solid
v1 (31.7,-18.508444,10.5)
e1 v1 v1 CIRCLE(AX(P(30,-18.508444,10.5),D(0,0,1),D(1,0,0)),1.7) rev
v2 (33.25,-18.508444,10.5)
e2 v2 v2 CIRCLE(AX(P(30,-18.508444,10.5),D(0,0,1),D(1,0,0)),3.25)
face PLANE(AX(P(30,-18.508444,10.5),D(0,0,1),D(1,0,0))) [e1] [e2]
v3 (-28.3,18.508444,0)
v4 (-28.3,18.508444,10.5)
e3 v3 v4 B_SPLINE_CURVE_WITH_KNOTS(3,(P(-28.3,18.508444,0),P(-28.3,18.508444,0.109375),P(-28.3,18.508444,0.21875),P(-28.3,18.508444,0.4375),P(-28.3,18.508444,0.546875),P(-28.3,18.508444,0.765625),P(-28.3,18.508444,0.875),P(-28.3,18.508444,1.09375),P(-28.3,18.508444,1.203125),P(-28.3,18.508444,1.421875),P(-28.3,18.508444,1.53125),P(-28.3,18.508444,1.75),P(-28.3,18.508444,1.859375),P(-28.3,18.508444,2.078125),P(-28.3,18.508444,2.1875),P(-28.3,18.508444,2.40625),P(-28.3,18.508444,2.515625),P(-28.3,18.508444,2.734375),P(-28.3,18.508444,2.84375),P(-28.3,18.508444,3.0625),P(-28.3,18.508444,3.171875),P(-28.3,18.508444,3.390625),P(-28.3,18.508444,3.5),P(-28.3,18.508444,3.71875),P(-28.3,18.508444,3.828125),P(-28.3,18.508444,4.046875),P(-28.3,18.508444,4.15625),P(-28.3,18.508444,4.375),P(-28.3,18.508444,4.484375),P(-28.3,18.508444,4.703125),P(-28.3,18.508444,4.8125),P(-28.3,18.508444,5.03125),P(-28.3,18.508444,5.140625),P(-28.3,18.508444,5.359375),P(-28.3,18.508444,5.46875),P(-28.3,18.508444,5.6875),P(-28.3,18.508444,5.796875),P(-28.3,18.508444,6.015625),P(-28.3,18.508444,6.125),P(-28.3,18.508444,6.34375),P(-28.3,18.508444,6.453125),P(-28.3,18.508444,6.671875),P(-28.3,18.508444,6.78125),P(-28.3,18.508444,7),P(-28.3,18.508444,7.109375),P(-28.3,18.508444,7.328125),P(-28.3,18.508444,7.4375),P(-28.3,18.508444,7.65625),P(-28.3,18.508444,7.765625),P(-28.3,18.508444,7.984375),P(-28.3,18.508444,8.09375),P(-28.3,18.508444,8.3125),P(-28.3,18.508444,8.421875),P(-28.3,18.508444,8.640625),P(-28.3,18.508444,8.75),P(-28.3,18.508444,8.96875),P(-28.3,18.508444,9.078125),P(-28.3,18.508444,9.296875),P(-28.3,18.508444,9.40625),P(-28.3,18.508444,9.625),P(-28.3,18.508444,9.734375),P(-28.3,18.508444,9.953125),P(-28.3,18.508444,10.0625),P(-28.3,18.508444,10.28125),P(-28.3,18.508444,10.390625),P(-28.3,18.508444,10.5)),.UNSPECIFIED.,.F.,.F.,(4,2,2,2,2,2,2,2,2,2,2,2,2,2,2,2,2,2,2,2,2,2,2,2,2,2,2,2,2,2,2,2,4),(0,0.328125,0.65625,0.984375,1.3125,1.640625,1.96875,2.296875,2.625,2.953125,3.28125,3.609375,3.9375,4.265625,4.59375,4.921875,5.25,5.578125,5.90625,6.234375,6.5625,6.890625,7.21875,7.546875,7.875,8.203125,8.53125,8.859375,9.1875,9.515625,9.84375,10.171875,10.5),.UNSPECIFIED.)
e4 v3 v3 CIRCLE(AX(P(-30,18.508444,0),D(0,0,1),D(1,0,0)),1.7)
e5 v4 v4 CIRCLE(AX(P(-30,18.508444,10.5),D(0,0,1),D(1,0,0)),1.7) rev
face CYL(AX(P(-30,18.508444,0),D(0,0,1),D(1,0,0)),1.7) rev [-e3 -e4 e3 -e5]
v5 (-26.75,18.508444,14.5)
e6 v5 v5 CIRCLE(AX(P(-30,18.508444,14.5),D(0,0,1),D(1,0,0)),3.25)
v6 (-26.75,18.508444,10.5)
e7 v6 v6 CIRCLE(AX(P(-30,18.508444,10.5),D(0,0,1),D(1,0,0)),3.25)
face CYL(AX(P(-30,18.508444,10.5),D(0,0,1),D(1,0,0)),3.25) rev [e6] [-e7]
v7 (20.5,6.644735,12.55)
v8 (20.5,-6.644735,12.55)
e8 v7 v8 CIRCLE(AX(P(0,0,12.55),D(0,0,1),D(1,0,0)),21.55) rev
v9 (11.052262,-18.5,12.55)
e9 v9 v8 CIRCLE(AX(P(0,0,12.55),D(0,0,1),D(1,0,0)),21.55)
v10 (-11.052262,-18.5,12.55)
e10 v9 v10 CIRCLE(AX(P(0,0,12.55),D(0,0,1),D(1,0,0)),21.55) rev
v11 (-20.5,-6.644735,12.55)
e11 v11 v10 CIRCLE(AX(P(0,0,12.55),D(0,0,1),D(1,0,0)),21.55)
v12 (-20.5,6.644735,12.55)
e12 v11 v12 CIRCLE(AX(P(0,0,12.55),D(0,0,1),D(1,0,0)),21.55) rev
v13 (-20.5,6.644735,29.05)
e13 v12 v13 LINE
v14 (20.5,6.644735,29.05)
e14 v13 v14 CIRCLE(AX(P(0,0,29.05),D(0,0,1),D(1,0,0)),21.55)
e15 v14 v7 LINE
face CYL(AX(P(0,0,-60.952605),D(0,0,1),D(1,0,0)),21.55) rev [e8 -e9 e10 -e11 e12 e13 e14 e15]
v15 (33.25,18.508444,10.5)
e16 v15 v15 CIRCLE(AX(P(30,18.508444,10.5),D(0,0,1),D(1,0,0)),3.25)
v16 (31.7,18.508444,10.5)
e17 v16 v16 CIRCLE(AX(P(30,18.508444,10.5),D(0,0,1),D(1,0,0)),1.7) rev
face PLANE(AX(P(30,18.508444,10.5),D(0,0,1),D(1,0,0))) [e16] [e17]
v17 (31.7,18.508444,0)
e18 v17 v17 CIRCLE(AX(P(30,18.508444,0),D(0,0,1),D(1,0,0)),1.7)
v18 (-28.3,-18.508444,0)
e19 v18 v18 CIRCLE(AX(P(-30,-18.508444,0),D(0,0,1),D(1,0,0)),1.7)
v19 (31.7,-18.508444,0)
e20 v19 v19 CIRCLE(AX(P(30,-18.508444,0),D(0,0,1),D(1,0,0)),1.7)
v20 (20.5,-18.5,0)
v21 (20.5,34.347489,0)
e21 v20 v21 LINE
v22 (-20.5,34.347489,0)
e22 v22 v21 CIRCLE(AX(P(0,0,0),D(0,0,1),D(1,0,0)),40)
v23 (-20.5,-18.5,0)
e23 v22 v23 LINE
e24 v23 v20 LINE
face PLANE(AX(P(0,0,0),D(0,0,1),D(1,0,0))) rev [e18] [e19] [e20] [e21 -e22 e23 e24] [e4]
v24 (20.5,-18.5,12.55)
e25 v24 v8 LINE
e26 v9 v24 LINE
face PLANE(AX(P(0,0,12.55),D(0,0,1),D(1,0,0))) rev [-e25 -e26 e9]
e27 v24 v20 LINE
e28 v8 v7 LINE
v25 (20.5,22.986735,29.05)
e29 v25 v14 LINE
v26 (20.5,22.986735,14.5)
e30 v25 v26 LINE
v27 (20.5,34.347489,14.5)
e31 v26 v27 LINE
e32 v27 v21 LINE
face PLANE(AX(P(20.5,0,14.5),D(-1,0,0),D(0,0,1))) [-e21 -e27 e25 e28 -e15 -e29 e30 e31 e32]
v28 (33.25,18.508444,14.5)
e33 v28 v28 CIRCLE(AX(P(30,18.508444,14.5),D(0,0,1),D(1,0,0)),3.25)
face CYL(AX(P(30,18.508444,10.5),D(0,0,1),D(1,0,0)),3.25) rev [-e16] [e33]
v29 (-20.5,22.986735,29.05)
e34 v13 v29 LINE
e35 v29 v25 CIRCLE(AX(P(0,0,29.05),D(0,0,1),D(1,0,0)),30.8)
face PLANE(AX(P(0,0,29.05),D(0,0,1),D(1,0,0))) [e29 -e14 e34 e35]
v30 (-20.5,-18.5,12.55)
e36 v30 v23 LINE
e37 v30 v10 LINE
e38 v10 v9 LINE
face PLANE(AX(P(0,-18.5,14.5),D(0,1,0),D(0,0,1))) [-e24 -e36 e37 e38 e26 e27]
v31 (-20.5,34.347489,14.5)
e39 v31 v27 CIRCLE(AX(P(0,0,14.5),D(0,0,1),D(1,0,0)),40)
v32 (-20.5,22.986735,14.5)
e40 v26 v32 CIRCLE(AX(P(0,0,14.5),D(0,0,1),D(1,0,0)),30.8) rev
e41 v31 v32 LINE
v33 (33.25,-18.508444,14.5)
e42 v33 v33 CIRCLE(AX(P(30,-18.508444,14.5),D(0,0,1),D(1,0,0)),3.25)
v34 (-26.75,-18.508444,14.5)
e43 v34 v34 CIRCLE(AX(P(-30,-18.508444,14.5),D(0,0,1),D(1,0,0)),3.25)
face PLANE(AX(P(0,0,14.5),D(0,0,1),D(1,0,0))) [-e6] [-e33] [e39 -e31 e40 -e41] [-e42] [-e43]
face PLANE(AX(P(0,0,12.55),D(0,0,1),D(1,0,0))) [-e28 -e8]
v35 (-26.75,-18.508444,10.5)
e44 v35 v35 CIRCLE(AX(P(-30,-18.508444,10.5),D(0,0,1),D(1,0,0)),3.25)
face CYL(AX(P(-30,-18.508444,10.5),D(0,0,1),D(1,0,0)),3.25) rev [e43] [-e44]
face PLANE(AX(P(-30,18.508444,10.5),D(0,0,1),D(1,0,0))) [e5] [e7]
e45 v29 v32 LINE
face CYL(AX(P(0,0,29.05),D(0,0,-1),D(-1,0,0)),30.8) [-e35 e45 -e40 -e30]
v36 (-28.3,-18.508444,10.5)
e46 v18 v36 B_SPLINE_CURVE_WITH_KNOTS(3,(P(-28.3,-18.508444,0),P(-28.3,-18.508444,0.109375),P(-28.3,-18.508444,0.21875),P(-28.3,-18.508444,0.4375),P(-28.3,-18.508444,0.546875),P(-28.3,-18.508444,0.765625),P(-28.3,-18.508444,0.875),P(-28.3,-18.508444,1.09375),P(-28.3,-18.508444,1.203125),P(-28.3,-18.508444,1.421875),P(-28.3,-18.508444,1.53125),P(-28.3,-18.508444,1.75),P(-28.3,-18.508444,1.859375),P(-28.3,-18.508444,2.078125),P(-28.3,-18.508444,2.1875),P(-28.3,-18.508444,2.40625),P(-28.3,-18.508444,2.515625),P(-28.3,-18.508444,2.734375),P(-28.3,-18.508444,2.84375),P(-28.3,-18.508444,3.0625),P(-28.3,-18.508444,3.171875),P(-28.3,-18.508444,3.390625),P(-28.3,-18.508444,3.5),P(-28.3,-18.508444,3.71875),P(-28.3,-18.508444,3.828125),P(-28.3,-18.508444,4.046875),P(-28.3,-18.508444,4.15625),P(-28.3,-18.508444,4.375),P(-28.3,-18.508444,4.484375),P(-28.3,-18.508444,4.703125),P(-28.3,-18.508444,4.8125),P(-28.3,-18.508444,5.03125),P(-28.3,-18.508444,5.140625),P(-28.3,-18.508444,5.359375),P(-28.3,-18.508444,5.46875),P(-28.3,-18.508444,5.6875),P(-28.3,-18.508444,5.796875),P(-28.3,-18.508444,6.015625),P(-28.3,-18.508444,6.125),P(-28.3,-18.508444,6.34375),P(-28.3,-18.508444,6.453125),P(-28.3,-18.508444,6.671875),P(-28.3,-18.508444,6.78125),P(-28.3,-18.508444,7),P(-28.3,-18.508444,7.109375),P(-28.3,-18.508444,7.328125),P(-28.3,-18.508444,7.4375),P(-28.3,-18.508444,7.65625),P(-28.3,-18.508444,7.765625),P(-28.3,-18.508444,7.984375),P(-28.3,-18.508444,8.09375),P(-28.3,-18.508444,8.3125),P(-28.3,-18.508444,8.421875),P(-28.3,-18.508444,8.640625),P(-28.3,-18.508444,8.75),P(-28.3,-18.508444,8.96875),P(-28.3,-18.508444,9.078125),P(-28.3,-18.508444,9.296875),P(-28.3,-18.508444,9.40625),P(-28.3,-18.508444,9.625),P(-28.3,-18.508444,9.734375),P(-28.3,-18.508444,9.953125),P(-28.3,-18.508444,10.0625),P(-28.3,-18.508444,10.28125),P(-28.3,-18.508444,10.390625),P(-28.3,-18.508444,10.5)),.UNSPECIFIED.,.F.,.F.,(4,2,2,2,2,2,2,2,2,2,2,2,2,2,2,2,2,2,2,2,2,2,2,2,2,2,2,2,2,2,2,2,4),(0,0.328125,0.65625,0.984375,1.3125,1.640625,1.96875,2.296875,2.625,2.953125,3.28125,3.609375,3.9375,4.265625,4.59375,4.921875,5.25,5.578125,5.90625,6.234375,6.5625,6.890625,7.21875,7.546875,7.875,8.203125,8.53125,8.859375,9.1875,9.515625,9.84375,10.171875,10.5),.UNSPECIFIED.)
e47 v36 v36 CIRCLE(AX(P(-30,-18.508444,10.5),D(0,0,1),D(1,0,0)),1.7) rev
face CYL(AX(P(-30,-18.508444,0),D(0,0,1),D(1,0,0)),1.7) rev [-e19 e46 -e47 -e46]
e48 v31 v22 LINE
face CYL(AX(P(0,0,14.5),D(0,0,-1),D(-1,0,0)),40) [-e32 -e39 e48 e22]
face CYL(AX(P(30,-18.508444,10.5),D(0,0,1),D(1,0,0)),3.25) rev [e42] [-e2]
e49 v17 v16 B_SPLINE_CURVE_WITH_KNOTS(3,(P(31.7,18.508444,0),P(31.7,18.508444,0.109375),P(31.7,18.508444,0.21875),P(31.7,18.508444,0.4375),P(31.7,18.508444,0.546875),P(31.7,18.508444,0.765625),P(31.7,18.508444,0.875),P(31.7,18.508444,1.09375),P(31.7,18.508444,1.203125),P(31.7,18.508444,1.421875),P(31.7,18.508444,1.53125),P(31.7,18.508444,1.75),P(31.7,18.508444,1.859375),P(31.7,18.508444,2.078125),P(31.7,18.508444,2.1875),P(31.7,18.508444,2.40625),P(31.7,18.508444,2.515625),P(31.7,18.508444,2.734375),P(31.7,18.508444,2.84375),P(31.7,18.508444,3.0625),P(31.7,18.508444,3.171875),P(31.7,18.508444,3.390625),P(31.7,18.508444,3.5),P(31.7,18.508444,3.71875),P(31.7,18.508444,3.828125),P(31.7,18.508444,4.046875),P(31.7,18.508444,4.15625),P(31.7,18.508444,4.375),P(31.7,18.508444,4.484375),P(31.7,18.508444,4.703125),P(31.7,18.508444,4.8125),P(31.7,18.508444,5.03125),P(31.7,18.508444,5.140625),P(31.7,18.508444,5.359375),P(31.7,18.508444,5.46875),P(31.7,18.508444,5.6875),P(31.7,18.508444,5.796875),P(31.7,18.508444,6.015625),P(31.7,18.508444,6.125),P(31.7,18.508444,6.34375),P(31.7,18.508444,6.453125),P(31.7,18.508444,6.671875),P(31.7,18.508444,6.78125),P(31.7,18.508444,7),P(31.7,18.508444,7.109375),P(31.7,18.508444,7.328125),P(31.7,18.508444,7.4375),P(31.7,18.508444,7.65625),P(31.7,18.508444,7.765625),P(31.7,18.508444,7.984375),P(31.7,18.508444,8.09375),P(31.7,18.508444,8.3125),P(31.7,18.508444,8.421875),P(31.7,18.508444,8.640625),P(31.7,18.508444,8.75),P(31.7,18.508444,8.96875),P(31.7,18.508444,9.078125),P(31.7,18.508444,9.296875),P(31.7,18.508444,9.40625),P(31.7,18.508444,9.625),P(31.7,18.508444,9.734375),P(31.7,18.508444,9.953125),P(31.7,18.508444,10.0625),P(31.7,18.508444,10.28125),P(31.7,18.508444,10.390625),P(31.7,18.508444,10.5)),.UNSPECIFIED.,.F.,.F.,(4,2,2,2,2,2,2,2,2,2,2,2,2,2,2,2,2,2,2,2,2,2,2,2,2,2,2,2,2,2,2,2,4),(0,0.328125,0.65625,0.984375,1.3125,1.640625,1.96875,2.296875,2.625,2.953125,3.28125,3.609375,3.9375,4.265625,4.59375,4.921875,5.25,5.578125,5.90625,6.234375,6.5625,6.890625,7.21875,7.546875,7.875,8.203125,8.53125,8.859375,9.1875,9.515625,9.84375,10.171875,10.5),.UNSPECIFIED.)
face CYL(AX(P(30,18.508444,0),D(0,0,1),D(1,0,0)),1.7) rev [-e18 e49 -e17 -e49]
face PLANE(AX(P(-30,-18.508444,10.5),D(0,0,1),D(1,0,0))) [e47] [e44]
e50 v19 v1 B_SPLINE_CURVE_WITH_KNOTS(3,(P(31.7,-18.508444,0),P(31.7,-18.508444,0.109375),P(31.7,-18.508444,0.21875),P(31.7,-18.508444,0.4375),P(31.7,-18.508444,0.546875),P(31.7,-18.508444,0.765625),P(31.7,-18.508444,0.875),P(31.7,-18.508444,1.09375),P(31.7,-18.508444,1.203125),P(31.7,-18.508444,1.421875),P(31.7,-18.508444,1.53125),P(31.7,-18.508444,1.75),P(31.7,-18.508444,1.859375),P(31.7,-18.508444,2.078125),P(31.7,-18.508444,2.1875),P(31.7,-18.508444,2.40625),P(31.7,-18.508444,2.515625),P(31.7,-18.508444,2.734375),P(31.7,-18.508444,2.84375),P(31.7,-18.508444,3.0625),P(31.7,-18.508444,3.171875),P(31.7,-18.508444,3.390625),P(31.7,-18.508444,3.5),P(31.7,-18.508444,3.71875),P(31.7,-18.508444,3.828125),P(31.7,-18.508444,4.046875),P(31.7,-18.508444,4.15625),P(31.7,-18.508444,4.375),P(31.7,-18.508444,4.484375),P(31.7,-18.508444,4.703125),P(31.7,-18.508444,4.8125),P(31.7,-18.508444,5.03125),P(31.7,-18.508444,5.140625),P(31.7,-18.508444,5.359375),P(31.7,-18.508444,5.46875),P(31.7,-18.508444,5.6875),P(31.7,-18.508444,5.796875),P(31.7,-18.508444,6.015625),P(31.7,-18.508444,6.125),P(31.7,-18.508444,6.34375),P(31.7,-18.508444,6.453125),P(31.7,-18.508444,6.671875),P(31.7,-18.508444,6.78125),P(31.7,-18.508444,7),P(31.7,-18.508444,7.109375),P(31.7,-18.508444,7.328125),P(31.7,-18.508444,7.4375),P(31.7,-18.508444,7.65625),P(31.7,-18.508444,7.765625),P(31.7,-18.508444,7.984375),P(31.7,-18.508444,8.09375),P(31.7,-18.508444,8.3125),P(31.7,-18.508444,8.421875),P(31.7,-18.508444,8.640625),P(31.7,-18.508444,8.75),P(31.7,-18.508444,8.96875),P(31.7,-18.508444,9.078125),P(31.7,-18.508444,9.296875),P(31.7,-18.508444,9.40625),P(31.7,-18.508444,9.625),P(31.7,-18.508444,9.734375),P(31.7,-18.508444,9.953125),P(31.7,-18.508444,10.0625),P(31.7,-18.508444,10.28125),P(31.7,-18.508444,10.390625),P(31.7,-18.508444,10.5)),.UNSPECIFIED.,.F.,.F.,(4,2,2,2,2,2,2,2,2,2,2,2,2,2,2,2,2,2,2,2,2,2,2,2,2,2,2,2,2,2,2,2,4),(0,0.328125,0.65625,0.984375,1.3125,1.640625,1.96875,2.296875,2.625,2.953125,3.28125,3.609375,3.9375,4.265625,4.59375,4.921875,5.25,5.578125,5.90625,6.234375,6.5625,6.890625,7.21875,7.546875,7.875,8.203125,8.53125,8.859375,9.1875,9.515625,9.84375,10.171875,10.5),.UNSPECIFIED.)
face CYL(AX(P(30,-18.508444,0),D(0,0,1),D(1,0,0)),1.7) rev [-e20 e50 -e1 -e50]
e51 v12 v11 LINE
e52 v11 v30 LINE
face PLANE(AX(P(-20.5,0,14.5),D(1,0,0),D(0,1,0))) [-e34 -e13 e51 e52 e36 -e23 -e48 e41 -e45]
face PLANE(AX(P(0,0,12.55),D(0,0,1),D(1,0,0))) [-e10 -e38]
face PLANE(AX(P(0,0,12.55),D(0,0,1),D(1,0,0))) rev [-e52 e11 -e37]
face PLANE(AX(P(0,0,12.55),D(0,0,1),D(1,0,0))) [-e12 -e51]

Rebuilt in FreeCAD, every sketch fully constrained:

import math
import FreeCAD as App
import Part
import Sketcher

doc = App.newDocument("Part")
body = doc.addObject("PartDesign::Body", "Body")

sketch1 = body.newObject("Sketcher::SketchObject", "Sketch")
sketch1.AttachmentSupport = (doc.getObject("XY_Plane"), [""])
sketch1.MapMode = "FlatFace"
sketch1.addGeometry([
    Part.LineSegment(App.Vector(-20, -18, 0), App.Vector(-20, 34, 0)),
    Part.ArcOfCircle(Part.Circle(App.Vector(0, 0, 0), App.Vector(0, 0, 1), 40), math.radians(121), math.radians(419)),
    Part.LineSegment(App.Vector(20, 34, 0), App.Vector(20, -18, 0)),
    Part.LineSegment(App.Vector(20, -18, 0), App.Vector(-20, -18, 0)),
], False)
sketch1.addConstraint([
    Sketcher.Constraint("Coincident", 0, 2, 1, 1),
    Sketcher.Constraint("Coincident", 1, 2, 2, 1),
    Sketcher.Constraint("Coincident", 2, 2, 3, 1),
    Sketcher.Constraint("Coincident", 3, 2, 0, 1),
    Sketcher.Constraint("Vertical", 0),
    Sketcher.Constraint("Vertical", 2),
    Sketcher.Constraint("Horizontal", 3),
    Sketcher.Constraint("Coincident", 1, 3, -1, 1),
    Sketcher.Constraint("Horizontal", 0, 2, 1, 2),
    Sketcher.Constraint("Radius", 1, 40.0),
    Sketcher.Constraint("DistanceX", 3, 2, 3, 1, 41.0),
    Sketcher.Constraint("DistanceY", 2, 2, -1, 1, 18.5),
])
pad1 = body.newObject("PartDesign::Pad", "Pad")
pad1.Profile = sketch1
pad1.Length = 14.5

sketch2 = body.newObject("Sketcher::SketchObject", "Sketch001")
sketch2.AttachmentSupport = (doc.getObject("XY_Plane"), [""])
sketch2.MapMode = "FlatFace"
sketch2.AttachmentOffset = App.Placement(App.Vector(0, 0, 14.5), App.Rotation())
sketch2.addGeometry(Part.Circle(App.Vector(0, 0, 0), App.Vector(0, 0, 1), 22), False)
sketch2.addConstraint([
    Sketcher.Constraint("Coincident", 0, 3, -1, 1),
    Sketcher.Constraint("Diameter", 0, 43.1),
])
pocket1 = body.newObject("PartDesign::Pocket", "Pocket")
pocket1.Profile = sketch2
pocket1.Length = 1.95

sketch3 = body.newObject("Sketcher::SketchObject", "Sketch002")
sketch3.AttachmentSupport = (doc.getObject("XY_Plane"), [""])
sketch3.MapMode = "FlatFace"
sketch3.AttachmentOffset = App.Placement(App.Vector(0, 0, 29.05), App.Rotation())
sketch3.addGeometry([
    Part.LineSegment(App.Vector(-20, 7, 0), App.Vector(-20, 23, 0)),
    Part.ArcOfCircle(Part.Circle(App.Vector(0, 0, 0), App.Vector(0, 0, 1), 31), math.radians(132), math.radians(408)),
    Part.LineSegment(App.Vector(20, 23, 0), App.Vector(20, 7, 0)),
    Part.ArcOfCircle(Part.Circle(App.Vector(0, 0, 0), App.Vector(0, 0, 1), 22), math.radians(162), math.radians(378)),
], False)
sketch3.addConstraint([
    Sketcher.Constraint("Coincident", 0, 2, 1, 1),
    Sketcher.Constraint("Coincident", 1, 2, 2, 1),
    Sketcher.Constraint("Coincident", 2, 2, 3, 2),
    Sketcher.Constraint("Coincident", 3, 1, 0, 1),
    Sketcher.Constraint("Vertical", 0),
    Sketcher.Constraint("Vertical", 2),
    Sketcher.Constraint("Coincident", 1, 3, -1, 1),
    Sketcher.Constraint("Coincident", 3, 3, -1, 1),
    Sketcher.Constraint("Horizontal", 0, 2, 1, 2),
    Sketcher.Constraint("Radius", 1, 30.8),
    Sketcher.Constraint("Radius", 3, 21.55),
    Sketcher.Constraint("DistanceX", 0, 2, 1, 2, 41.0),
])
pad2 = body.newObject("PartDesign::Pad", "Pad001")
pad2.Profile = sketch3
pad2.Length = 16.5
pad2.Reversed = True

sketch4 = body.newObject("Sketcher::SketchObject", "Sketch003")
sketch4.AttachmentSupport = (doc.getObject("XY_Plane"), [""])
sketch4.MapMode = "FlatFace"
sketch4.AttachmentOffset = App.Placement(App.Vector(0, 0, 14.5), App.Rotation())
sketch4.addGeometry([
    Part.Circle(App.Vector(30, 18.5, 0), App.Vector(0, 0, 1), 1.7),
    Part.Circle(App.Vector(30, -18.5, 0), App.Vector(0, 0, 1), 1.7),
    Part.Circle(App.Vector(-30, 18.5, 0), App.Vector(0, 0, 1), 1.7),
    Part.Circle(App.Vector(-30, -18.5, 0), App.Vector(0, 0, 1), 1.7),
], False)
sketch4.addConstraint([
    Sketcher.Constraint("Equal", 0, 1),
    Sketcher.Constraint("Equal", 1, 2),
    Sketcher.Constraint("Equal", 2, 3),
    Sketcher.Constraint("Symmetric", 1, 3, 2, 3, -1, 1),
    Sketcher.Constraint("Symmetric", 0, 3, 3, 3, -1, 1),
    Sketcher.Constraint("Symmetric", 0, 3, 2, 3, -2),
    Sketcher.Constraint("Diameter", 0, 3.4),
    Sketcher.Constraint("DistanceX", -1, 1, 0, 3, 30.0),
    Sketcher.Constraint("DistanceY", 1, 3, 0, 3, 37.016888),
])
pocket2 = body.newObject("PartDesign::Pocket", "Pocket001")
pocket2.Profile = sketch4
pocket2.Type = "ThroughAll"

sketch5 = body.newObject("Sketcher::SketchObject", "Sketch004")
sketch5.AttachmentSupport = (doc.getObject("XY_Plane"), [""])
sketch5.MapMode = "FlatFace"
sketch5.AttachmentOffset = App.Placement(App.Vector(0, 0, 14.5), App.Rotation())
sketch5.addGeometry([
    Part.Circle(App.Vector(-30, 18.5, 0), App.Vector(0, 0, 1), 3.2),
    Part.Circle(App.Vector(30, 18.5, 0), App.Vector(0, 0, 1), 3.2),
    Part.Circle(App.Vector(30, -18.5, 0), App.Vector(0, 0, 1), 3.2),
    Part.Circle(App.Vector(-30, -18.5, 0), App.Vector(0, 0, 1), 3.2),
], False)
sketch5.addConstraint([
    Sketcher.Constraint("Equal", 0, 1),
    Sketcher.Constraint("Equal", 1, 2),
    Sketcher.Constraint("Equal", 2, 3),
    Sketcher.Constraint("Symmetric", 0, 3, 2, 3, -1, 1),
    Sketcher.Constraint("Symmetric", 1, 3, 3, 3, -1, 1),
    Sketcher.Constraint("Symmetric", 0, 3, 1, 3, -2),
    Sketcher.Constraint("Diameter", 0, 6.5),
    Sketcher.Constraint("DistanceX", 0, 3, -1, 1, 30.0),
    Sketcher.Constraint("DistanceY", 2, 3, 1, 3, 37.016888),
])
pocket3 = body.newObject("PartDesign::Pocket", "Pocket002")
pocket3.Profile = sketch5
pocket3.Length = 4

doc.recompute()
